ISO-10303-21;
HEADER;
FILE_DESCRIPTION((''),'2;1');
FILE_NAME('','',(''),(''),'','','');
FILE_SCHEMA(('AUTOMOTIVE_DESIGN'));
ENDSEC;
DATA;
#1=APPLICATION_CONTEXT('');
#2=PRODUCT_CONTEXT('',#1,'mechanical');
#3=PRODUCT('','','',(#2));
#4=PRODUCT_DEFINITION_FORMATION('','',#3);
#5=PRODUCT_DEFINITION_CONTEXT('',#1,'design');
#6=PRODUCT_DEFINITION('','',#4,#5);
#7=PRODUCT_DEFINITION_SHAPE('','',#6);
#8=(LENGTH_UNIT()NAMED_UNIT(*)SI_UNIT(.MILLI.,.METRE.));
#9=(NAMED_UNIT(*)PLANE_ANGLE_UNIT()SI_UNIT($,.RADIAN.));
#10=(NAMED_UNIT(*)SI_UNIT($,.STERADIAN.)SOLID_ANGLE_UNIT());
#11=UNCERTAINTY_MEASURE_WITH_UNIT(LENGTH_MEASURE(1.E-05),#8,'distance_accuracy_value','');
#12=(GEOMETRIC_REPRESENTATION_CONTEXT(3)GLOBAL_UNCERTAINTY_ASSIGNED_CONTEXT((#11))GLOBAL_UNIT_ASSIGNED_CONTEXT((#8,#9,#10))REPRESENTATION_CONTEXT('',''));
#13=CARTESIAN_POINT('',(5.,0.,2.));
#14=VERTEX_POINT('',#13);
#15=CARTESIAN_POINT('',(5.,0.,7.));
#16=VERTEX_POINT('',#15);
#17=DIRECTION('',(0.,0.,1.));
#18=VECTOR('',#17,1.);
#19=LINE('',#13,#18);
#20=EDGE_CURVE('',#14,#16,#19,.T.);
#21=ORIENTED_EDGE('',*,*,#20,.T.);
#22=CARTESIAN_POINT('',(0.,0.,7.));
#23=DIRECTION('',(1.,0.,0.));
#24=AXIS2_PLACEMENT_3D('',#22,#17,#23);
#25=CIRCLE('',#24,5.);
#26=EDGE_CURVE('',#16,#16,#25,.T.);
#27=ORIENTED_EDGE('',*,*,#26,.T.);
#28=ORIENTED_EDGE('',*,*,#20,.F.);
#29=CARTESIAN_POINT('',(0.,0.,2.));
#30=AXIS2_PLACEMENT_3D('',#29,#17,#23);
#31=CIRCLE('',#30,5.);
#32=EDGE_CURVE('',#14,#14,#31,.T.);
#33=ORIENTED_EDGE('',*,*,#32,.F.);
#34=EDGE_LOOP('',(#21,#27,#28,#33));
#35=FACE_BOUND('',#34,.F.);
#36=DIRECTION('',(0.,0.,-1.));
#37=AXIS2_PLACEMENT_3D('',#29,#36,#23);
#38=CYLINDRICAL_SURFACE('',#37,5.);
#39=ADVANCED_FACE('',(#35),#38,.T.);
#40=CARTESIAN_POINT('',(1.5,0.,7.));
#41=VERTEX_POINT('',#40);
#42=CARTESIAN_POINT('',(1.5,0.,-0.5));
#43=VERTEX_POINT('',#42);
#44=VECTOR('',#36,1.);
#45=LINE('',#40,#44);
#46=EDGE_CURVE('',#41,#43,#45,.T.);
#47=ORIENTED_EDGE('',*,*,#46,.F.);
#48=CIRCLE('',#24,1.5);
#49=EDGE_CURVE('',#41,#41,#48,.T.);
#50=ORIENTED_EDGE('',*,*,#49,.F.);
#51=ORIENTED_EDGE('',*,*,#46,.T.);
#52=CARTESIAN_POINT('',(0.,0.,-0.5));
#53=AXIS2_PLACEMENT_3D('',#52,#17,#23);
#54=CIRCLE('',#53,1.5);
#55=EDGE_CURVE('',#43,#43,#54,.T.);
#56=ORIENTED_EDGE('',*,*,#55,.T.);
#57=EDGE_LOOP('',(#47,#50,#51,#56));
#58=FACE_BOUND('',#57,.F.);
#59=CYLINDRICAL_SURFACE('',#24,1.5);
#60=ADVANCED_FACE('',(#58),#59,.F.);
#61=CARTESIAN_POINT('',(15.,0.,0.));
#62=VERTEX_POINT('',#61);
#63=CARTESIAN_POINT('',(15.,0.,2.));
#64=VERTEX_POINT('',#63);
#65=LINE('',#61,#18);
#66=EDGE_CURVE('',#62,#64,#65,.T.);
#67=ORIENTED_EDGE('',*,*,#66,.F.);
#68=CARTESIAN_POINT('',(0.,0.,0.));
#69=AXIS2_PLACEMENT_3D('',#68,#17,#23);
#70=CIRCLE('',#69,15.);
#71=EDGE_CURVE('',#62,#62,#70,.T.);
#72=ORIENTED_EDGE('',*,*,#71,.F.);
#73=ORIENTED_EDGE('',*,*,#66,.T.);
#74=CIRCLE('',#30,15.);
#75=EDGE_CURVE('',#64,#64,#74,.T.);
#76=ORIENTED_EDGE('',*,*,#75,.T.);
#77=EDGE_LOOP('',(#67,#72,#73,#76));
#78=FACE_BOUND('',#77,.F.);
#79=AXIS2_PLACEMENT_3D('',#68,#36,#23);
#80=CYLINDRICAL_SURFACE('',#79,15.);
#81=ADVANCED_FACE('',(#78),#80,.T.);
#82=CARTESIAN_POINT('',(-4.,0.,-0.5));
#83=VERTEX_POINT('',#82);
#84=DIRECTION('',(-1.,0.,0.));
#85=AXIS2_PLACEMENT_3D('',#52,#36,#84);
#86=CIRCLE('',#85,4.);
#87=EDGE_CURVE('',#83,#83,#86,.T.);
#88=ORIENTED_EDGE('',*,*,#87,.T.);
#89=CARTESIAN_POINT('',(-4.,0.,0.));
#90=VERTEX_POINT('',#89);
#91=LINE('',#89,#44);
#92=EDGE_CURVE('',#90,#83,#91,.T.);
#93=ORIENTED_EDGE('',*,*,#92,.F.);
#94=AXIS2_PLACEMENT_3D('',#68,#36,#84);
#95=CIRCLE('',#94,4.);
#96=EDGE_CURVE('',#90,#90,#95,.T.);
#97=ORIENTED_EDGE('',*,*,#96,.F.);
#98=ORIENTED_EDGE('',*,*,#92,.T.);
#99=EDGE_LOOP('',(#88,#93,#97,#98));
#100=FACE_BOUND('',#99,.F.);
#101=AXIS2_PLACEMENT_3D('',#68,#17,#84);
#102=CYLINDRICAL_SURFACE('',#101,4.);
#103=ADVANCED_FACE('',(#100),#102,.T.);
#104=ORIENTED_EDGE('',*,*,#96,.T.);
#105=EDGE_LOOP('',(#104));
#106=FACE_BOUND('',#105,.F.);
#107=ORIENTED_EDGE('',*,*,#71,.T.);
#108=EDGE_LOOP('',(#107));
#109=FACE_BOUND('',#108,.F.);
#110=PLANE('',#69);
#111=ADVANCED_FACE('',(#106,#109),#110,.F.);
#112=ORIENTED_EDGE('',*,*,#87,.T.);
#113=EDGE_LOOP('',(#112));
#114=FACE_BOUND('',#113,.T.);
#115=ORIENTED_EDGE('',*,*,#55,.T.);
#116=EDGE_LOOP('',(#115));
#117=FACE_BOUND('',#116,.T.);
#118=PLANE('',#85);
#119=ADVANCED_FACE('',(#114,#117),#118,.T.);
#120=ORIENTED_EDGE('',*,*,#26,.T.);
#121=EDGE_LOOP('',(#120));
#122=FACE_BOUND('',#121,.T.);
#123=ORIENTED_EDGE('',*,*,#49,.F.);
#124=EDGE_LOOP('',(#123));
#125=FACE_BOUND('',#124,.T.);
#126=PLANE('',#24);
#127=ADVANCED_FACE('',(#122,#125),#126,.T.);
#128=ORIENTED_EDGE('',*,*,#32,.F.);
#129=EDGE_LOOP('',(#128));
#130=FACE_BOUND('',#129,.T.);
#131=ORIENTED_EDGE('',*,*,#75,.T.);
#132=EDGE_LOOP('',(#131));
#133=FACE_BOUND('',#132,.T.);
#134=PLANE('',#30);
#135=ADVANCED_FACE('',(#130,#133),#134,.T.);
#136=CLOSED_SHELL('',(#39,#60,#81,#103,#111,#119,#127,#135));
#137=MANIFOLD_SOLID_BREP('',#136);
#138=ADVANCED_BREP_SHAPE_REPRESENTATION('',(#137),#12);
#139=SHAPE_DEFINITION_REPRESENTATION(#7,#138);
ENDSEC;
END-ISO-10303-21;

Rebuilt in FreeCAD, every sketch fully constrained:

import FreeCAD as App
import Part
import Sketcher
Q = App.Units.Quantity

doc = App.newDocument("Part")
params = doc.addObject("Spreadsheet::Sheet", "Params")
for row, (alias, value) in enumerate([
    ("sketch1_diameter", "30 mm"),
    ("pad1_length", "2 mm"),
    ("sketch2_diameter", "10 mm"),
    ("pad2_length", "5 mm"),
    ("sketch3_diameter", "8 mm"),
    ("pad3_length", "0.5 mm"),
    ("sketch4_diameter", "3 mm"),
    ("pocket1_length", "15 mm"),
], start=1):
    params.set(f"A{row}", alias)
    params.set(f"B{row}", "=" + value)
    params.setAlias(f"B{row}", alias)

body = doc.addObject("PartDesign::Body", "Body")

# Sketch on XY plane
sketch1 = body.newObject("Sketcher::SketchObject", "Sketch")
sketch1.AttachmentSupport = (doc.getObject("XY_Plane"), [""])
sketch1.MapMode = "FlatFace"
sketch1.addGeometry(Part.Circle(App.Vector(0, 0, 0), App.Vector(0, 0, 1), 15), False)
sketch1.addConstraint([
    Sketcher.Constraint("Coincident", 0, 3, -1, 1),
    Sketcher.Constraint("Diameter", 0, Q("30 mm")),
])
sketch1.setExpression("Constraints[1]", "Params.sketch1_diameter")
pad1 = body.newObject("PartDesign::Pad", "Pad")
pad1.Profile = sketch1
pad1.setExpression("Length", "Params.pad1_length")

# Sketch on XY plane
sketch2 = body.newObject("Sketcher::SketchObject", "Sketch001")
sketch2.AttachmentSupport = (doc.getObject("XY_Plane"), [""])
sketch2.MapMode = "FlatFace"
sketch2.AttachmentOffset = App.Placement(App.Vector(0, 0, 2), App.Rotation())
sketch2.addGeometry(Part.Circle(App.Vector(0, 0, 0), App.Vector(0, 0, 1), 5), False)
sketch2.addConstraint([
    Sketcher.Constraint("Coincident", 0, 3, -1, 1),
    Sketcher.Constraint("Diameter", 0, Q("10 mm")),
])
sketch2.setExpression("Constraints[1]", "Params.sketch2_diameter")
pad2 = body.newObject("PartDesign::Pad", "Pad001")
pad2.Profile = sketch2
pad2.setExpression("Length", "Params.pad2_length")

# Sketch on XY plane
sketch3 = body.newObject("Sketcher::SketchObject", "Sketch002")
sketch3.AttachmentSupport = (doc.getObject("XY_Plane"), [""])
sketch3.MapMode = "FlatFace"
sketch3.addGeometry(Part.Circle(App.Vector(0, 0, 0), App.Vector(0, 0, 1), 4), False)
sketch3.addConstraint([
    Sketcher.Constraint("Coincident", 0, 3, -1, 1),
    Sketcher.Constraint("Diameter", 0, Q("8 mm")),
])
sketch3.setExpression("Constraints[1]", "Params.sketch3_diameter")
pad3 = body.newObject("PartDesign::Pad", "Pad002")
pad3.Profile = sketch3
pad3.setExpression("Length", "Params.pad3_length")
pad3.Reversed = True

# Sketch on XY plane
sketch4 = body.newObject("Sketcher::SketchObject", "Sketch003")
sketch4.AttachmentSupport = (doc.getObject("XY_Plane"), [""])
sketch4.MapMode = "FlatFace"
sketch4.AttachmentOffset = App.Placement(App.Vector(0, 0, 7), App.Rotation())
sketch4.addGeometry(Part.Circle(App.Vector(0, 0, 0), App.Vector(0, 0, 1), 1.5), False)
sketch4.addConstraint([
    Sketcher.Constraint("Coincident", 0, 3, -1, 1),
    Sketcher.Constraint("Diameter", 0, Q("3 mm")),
])
sketch4.setExpression("Constraints[1]", "Params.sketch4_diameter")
pocket1 = body.newObject("PartDesign::Pocket", "Pocket")
pocket1.Profile = sketch4
pocket1.setExpression("Length", "Params.pocket1_length")

doc.recompute()
